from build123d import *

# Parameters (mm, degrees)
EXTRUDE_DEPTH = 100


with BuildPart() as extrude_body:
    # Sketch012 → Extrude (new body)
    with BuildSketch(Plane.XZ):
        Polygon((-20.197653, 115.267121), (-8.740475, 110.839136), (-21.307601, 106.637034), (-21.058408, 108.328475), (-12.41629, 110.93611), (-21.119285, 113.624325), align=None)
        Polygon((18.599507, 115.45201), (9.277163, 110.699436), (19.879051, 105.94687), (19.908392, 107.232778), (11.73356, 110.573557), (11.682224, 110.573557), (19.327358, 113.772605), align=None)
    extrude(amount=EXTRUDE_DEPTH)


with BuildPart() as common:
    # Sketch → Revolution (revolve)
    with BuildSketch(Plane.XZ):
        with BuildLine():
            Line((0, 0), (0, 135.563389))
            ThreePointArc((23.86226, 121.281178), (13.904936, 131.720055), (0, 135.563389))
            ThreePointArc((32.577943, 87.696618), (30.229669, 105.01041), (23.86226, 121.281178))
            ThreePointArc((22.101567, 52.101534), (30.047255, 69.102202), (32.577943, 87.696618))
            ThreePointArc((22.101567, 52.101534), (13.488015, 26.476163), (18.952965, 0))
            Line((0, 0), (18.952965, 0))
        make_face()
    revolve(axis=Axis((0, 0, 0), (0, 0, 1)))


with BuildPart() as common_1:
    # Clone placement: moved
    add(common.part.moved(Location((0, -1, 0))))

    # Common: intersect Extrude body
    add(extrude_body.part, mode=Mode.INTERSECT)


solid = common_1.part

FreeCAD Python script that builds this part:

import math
import FreeCAD as App
import Part
import Sketcher

V = App.Vector


def add_polygon(sketch, points):
    """Adds a closed chain of lines whose ends are joined by coincident constraints."""
    first, n = sketch.GeometryCount, len(points)
    for a, b in zip(points, points[1:] + points[:1]):
        sketch.addGeometry(Part.LineSegment(App.Vector(*a, 0), App.Vector(*b, 0)), False)
    for i in range(n):
        sketch.addConstraint(Sketcher.Constraint("Coincident", first + i, 2, first + (i + 1) % n, 1))

doc = App.newDocument("Part")
body = doc.addObject("PartDesign::Body", "Body")
body.AllowCompound = True

# Sketch on XZ plane
sketch1 = body.newObject("Sketcher::SketchObject", "Sketch")
sketch1.AttachmentSupport = (doc.getObject("XZ_Plane"), [""])
sketch1.MapMode = "FlatFace"
add_polygon(sketch1, [(-8.74, 110.84), (-20.2, 115.27), (-21.12, 113.62), (-12.42, 110.94), (-21.06, 108.33), (-21.31, 106.64)])  # lines 0-5
add_polygon(sketch1, [(18.6, 115.45), (9.28, 110.7), (19.88, 105.95), (19.91, 107.23), (11.73, 110.57), (11.68, 110.57), (19.33, 113.77)])  # lines 6-12
sketch1.addConstraint([
    Sketcher.Constraint("Horizontal", 10),
    Sketcher.Constraint("Distance", 4, 1.709699),
    Sketcher.Constraint("DistanceX", 4, 2, -1, 1, 21.307601),
    Sketcher.Constraint("DistanceY", 4, 2, 5, 2, 4.202102),
    Sketcher.Constraint("DistanceY", 6, 2, 5, 2, 0.1397),
    Sketcher.Constraint("DistanceX", 5, 2, 10, 2, 20.422699),
    Sketcher.Constraint("Distance", 2, 9.108711),
    Sketcher.Constraint("Distance", 5, 13.25105),
    Sketcher.Constraint("Distance", 9, 8.83112),
    Sketcher.Constraint("Distance", 11, 8.287459),
    Sketcher.Constraint("DistanceX", 10, 2, 10, 1, 0.051336),
    Sketcher.Constraint("DistanceY", -1, 1, 0, 2, 115.267121),
    Sketcher.Constraint("DistanceX", 2, 2, -1, 1, 12.41629),
    Sketcher.Constraint("DistanceY", -1, 1, 2, 2, 110.93611),
    Sketcher.Constraint("DistanceX", 3, 2, -1, 1, 21.058408),
    Sketcher.Constraint("DistanceX", -1, 1, 7, 2, 19.879051),
    Sketcher.Constraint("DistanceY", -1, 1, 7, 2, 105.94687),
    Sketcher.Constraint("DistanceX", -1, 1, 8, 2, 19.908392),
    Sketcher.Constraint("DistanceX", -1, 1, 11, 2, 19.327358),
    Sketcher.Constraint("DistanceY", -1, 1, 12, 2, 115.45201),
    Sketcher.Constraint("DistanceY", 3, 2, 1, 2, 5.29585),
    Sketcher.Constraint("DistanceX", 1, 2, 5, 2, 12.37881),
    Sketcher.Constraint("DistanceX", 3, 2, 6, 2, 30.335571),
    Sketcher.Constraint("DistanceY", 8, 2, 6, 2, 3.466658),
    Sketcher.Constraint("DistanceX", 12, 2, 11, 2, 0.727851),
    Sketcher.Constraint("Distance", 0, 12.283077),
])
pad1 = body.newObject("PartDesign::Pad", "Pad")
pad1.Profile = sketch1
pad1.Length = 100
body2 = doc.addObject("PartDesign::Body", "Body001")

# Sketch on XZ plane
sketch2 = body2.newObject("Sketcher::SketchObject", "Sketch001")
sketch2.AttachmentSupport = (doc.getObject("XZ_Plane001"), [""])
sketch2.MapMode = "FlatFace"
sketch2.addGeometry([
    Part.LineSegment(V(0, 136, 0), V(0, 0, 0)),  # 0
    Part.LineSegment(V(0, 0, 0), V(19, 0, 0)),  # 1
    Part.ArcOfCircle(Part.Circle(V(65, 23, 0), V(0, 0, 1), 52), math.radians(146), math.radians(207)),  # 2
    Part.ArcOfCircle(Part.Circle(V(-30, 87, 0), V(0, 0, 1), 62), math.radians(-34), math.radians(1)),  # 3
    Part.ArcOfCircle(Part.Circle(V(-41, 87, 0), V(0, 0, 1), 74), math.radians(1), math.radians(28)),  # 4
    Part.ArcOfCircle(Part.Circle(V(0, 108, 0), V(0, 0, 1), 27), math.radians(28), math.radians(90)),  # 5
], False)
sketch2.addConstraint([
    Sketcher.Constraint("Coincident", 0, 2, 1, 1),
    Sketcher.Constraint("Coincident", 1, 2, 2, 2),
    Sketcher.Constraint("Tangent", 2, 1, 3, 1),
    Sketcher.Constraint("Tangent", 3, 2, 4, 1),
    Sketcher.Constraint("Tangent", 4, 2, 5, 1),
    Sketcher.Constraint("Coincident", 5, 2, 0, 1),
    Sketcher.Constraint("Vertical", 0),
    Sketcher.Constraint("Horizontal", 1),
    Sketcher.Constraint("Coincident", 0, 2, -1, 1),
    Sketcher.Constraint("Radius", 3, 62.387511),
    Sketcher.Constraint("Radius", 5, 27.075258),
    Sketcher.Constraint("Radius", 2, 51.818155),
    Sketcher.Constraint("Radius", 4, 73.521663),
    Sketcher.Constraint("DistanceY", 0, 2, 0, 1, 135.563389),
    Sketcher.Constraint("DistanceY", 4, 3, 5, 3, 21.945901),
    Sketcher.Constraint("DistanceX", 1, 2, 2, 1, 3.148602),
    Sketcher.Constraint("DistanceX", 4, 3, 3, 2, 73.5126),
    Sketcher.Constraint("DistanceX", 1, 1, 1, 2, 18.952965),
])
revolution = body2.newObject("PartDesign::Revolution", "Revolution")
revolution.Profile = sketch2
revolution.ReferenceAxis = (sketch2, ["V_Axis"])
revolution.Angle = 360
body3 = doc.addObject("PartDesign::Body", "Body002")
body3.AllowCompound = True
doc.recompute()

body2.Placement = App.Placement(V(0, -1, 0), App.Rotation(V(0, 0, 1), 0))
boolean = body3.newObject("PartDesign::Boolean", "Boolean")
boolean.Type = "Fuse"
boolean.addObjects([body2])
doc.recompute()

boolean2 = body3.newObject("PartDesign::Boolean", "Boolean001")
boolean2.Type = "Common"
boolean2.addObjects([body])

doc.recompute()
